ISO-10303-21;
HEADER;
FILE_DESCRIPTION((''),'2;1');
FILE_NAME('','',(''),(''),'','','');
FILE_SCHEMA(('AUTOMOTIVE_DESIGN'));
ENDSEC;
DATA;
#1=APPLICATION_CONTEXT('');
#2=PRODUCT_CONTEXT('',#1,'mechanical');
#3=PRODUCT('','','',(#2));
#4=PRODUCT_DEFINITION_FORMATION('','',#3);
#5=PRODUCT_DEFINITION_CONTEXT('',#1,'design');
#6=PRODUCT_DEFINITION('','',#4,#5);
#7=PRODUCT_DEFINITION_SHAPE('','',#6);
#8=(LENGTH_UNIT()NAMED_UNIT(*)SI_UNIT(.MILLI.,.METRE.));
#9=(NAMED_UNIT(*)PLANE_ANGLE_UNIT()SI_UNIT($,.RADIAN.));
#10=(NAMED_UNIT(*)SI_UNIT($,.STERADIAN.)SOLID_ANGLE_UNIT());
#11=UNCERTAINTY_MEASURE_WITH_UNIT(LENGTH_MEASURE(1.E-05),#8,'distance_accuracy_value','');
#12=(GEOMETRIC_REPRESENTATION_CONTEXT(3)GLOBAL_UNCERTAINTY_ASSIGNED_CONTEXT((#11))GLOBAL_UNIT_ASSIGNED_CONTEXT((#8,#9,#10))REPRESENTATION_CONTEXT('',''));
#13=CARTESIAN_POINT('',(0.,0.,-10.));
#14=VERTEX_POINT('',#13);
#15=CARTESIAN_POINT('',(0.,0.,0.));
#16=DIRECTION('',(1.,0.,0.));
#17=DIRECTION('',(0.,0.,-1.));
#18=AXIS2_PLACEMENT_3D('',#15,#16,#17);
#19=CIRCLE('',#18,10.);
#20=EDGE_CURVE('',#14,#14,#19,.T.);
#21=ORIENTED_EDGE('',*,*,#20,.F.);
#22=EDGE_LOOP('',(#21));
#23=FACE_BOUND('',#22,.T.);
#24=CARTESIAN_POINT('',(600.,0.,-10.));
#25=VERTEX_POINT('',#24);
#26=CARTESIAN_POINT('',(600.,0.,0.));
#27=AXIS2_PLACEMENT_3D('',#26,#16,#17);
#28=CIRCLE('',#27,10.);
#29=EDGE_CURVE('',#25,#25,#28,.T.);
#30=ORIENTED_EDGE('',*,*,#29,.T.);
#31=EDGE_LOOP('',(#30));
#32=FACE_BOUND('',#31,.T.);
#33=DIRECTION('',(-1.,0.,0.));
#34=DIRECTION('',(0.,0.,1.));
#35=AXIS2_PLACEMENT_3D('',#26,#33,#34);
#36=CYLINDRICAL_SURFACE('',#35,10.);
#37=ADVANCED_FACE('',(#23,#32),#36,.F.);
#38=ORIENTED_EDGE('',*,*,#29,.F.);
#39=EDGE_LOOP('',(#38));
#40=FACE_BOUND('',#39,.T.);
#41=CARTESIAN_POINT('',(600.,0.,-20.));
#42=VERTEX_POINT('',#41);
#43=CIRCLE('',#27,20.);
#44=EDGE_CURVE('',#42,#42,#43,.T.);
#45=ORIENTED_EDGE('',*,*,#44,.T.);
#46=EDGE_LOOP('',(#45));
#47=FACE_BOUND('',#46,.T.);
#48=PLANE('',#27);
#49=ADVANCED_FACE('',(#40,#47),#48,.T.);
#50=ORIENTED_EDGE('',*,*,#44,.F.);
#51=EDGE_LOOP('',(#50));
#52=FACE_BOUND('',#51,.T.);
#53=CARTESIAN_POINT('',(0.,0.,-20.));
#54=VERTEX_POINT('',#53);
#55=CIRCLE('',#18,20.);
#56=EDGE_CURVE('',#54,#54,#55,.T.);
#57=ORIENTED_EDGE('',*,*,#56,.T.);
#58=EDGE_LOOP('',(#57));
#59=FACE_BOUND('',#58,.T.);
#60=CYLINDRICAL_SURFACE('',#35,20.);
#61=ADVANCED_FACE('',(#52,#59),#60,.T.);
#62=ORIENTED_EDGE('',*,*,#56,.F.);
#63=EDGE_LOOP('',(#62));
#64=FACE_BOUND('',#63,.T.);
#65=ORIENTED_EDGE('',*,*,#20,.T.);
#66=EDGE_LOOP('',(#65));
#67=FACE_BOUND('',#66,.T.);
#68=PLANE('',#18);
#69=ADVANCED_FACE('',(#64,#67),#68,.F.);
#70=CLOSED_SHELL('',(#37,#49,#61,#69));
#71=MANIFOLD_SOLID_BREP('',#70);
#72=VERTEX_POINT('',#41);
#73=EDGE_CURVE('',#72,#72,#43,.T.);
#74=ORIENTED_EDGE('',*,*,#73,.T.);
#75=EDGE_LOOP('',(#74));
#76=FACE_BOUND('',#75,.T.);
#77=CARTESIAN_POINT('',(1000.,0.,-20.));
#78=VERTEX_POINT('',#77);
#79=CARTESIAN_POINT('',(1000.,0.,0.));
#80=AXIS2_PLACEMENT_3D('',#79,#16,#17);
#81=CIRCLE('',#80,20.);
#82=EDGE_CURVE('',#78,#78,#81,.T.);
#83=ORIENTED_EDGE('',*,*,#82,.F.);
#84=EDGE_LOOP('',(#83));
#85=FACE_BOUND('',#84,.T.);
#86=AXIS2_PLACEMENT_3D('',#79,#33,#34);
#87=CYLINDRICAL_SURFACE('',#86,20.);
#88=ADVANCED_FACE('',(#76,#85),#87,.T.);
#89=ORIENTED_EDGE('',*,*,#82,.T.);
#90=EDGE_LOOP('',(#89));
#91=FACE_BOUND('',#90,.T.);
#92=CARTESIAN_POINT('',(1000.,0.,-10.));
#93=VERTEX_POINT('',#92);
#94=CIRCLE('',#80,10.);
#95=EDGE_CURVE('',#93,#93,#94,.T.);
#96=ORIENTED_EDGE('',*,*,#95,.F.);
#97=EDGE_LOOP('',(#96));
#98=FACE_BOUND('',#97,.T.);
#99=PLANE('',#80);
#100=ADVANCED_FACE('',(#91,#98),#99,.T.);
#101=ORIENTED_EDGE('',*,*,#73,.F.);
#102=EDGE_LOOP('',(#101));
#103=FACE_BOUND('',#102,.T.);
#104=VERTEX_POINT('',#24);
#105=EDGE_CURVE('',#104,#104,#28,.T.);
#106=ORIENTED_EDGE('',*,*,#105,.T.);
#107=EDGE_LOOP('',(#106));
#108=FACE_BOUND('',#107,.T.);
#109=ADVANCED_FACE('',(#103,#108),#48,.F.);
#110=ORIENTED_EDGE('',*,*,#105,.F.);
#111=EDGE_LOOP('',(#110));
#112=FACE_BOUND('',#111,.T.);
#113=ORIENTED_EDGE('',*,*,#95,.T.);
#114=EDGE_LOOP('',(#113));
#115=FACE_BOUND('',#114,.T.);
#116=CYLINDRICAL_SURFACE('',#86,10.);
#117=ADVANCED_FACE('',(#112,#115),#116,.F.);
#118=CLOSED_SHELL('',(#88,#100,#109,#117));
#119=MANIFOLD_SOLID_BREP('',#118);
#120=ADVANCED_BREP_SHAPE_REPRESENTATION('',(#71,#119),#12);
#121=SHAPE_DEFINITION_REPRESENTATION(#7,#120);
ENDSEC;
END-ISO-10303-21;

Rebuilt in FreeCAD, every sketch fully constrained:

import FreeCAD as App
import Part
import Sketcher

V = App.Vector
Q = App.Units.Quantity

doc = App.newDocument("Part")
params = doc.addObject("Spreadsheet::Sheet", "Params")
for row, (alias, value) in enumerate([
    ("sketch1_diameter", "40 mm"),
    ("sketch1_diameter2", "20 mm"),
    ("pad1_length", "600 mm"),
    ("sketch2_diameter", "40 mm"),
    ("sketch2_diameter2", "20 mm"),
    ("pad2_length", "400 mm"),
], start=1):
    params.set(f"A{row}", alias)
    params.set(f"B{row}", "=" + value)
    params.setAlias(f"B{row}", alias)

body = doc.addObject("PartDesign::Body", "Body")

sketch1 = body.newObject("Sketcher::SketchObject", "Sketch")
sketch1.AttachmentSupport = (doc.getObject("YZ_Plane"), [""])
sketch1.MapMode = "FlatFace"
sketch1.addGeometry([
    Part.Circle(V(0, 0, 0), V(0, 0, 1), 20),
    Part.Circle(V(0, 0, 0), V(0, 0, 1), 10),
], False)
sketch1.addConstraint([
    Sketcher.Constraint("Coincident", 0, 3, -1, 1),
    Sketcher.Constraint("Coincident", 1, 3, -1, 1),
    Sketcher.Constraint("Diameter", 0, Q("40 mm")),
    Sketcher.Constraint("Diameter", 1, Q("20 mm")),
])
sketch1.setExpression("Constraints[2]", "Params.sketch1_diameter")
sketch1.setExpression("Constraints[3]", "Params.sketch1_diameter2")
pad1 = body.newObject("PartDesign::Pad", "Pad")
pad1.Profile = sketch1
pad1.setExpression("Length", "Params.pad1_length")
body2 = doc.addObject("PartDesign::Body", "Body001")

sketch2 = body2.newObject("Sketcher::SketchObject", "Sketch001")
sketch2.AttachmentSupport = (doc.getObject("YZ_Plane001"), [""])
sketch2.MapMode = "FlatFace"
sketch2.AttachmentOffset = App.Placement(V(0, 0, 600), App.Rotation())
sketch2.addGeometry([
    Part.Circle(V(0, 0, 0), V(0, 0, 1), 20),
    Part.Circle(V(0, 0, 0), V(0, 0, 1), 10),
], False)
sketch2.addConstraint([
    Sketcher.Constraint("Coincident", 0, 3, -1, 1),
    Sketcher.Constraint("Coincident", 1, 3, -1, 1),
    Sketcher.Constraint("Diameter", 0, Q("40 mm")),
    Sketcher.Constraint("Diameter", 1, Q("20 mm")),
])
sketch2.setExpression("Constraints[2]", "Params.sketch2_diameter")
sketch2.setExpression("Constraints[3]", "Params.sketch2_diameter2")
pad2 = body2.newObject("PartDesign::Pad", "Pad001")
pad2.Profile = sketch2
pad2.setExpression("Length", "Params.pad2_length")

doc.recompute()
